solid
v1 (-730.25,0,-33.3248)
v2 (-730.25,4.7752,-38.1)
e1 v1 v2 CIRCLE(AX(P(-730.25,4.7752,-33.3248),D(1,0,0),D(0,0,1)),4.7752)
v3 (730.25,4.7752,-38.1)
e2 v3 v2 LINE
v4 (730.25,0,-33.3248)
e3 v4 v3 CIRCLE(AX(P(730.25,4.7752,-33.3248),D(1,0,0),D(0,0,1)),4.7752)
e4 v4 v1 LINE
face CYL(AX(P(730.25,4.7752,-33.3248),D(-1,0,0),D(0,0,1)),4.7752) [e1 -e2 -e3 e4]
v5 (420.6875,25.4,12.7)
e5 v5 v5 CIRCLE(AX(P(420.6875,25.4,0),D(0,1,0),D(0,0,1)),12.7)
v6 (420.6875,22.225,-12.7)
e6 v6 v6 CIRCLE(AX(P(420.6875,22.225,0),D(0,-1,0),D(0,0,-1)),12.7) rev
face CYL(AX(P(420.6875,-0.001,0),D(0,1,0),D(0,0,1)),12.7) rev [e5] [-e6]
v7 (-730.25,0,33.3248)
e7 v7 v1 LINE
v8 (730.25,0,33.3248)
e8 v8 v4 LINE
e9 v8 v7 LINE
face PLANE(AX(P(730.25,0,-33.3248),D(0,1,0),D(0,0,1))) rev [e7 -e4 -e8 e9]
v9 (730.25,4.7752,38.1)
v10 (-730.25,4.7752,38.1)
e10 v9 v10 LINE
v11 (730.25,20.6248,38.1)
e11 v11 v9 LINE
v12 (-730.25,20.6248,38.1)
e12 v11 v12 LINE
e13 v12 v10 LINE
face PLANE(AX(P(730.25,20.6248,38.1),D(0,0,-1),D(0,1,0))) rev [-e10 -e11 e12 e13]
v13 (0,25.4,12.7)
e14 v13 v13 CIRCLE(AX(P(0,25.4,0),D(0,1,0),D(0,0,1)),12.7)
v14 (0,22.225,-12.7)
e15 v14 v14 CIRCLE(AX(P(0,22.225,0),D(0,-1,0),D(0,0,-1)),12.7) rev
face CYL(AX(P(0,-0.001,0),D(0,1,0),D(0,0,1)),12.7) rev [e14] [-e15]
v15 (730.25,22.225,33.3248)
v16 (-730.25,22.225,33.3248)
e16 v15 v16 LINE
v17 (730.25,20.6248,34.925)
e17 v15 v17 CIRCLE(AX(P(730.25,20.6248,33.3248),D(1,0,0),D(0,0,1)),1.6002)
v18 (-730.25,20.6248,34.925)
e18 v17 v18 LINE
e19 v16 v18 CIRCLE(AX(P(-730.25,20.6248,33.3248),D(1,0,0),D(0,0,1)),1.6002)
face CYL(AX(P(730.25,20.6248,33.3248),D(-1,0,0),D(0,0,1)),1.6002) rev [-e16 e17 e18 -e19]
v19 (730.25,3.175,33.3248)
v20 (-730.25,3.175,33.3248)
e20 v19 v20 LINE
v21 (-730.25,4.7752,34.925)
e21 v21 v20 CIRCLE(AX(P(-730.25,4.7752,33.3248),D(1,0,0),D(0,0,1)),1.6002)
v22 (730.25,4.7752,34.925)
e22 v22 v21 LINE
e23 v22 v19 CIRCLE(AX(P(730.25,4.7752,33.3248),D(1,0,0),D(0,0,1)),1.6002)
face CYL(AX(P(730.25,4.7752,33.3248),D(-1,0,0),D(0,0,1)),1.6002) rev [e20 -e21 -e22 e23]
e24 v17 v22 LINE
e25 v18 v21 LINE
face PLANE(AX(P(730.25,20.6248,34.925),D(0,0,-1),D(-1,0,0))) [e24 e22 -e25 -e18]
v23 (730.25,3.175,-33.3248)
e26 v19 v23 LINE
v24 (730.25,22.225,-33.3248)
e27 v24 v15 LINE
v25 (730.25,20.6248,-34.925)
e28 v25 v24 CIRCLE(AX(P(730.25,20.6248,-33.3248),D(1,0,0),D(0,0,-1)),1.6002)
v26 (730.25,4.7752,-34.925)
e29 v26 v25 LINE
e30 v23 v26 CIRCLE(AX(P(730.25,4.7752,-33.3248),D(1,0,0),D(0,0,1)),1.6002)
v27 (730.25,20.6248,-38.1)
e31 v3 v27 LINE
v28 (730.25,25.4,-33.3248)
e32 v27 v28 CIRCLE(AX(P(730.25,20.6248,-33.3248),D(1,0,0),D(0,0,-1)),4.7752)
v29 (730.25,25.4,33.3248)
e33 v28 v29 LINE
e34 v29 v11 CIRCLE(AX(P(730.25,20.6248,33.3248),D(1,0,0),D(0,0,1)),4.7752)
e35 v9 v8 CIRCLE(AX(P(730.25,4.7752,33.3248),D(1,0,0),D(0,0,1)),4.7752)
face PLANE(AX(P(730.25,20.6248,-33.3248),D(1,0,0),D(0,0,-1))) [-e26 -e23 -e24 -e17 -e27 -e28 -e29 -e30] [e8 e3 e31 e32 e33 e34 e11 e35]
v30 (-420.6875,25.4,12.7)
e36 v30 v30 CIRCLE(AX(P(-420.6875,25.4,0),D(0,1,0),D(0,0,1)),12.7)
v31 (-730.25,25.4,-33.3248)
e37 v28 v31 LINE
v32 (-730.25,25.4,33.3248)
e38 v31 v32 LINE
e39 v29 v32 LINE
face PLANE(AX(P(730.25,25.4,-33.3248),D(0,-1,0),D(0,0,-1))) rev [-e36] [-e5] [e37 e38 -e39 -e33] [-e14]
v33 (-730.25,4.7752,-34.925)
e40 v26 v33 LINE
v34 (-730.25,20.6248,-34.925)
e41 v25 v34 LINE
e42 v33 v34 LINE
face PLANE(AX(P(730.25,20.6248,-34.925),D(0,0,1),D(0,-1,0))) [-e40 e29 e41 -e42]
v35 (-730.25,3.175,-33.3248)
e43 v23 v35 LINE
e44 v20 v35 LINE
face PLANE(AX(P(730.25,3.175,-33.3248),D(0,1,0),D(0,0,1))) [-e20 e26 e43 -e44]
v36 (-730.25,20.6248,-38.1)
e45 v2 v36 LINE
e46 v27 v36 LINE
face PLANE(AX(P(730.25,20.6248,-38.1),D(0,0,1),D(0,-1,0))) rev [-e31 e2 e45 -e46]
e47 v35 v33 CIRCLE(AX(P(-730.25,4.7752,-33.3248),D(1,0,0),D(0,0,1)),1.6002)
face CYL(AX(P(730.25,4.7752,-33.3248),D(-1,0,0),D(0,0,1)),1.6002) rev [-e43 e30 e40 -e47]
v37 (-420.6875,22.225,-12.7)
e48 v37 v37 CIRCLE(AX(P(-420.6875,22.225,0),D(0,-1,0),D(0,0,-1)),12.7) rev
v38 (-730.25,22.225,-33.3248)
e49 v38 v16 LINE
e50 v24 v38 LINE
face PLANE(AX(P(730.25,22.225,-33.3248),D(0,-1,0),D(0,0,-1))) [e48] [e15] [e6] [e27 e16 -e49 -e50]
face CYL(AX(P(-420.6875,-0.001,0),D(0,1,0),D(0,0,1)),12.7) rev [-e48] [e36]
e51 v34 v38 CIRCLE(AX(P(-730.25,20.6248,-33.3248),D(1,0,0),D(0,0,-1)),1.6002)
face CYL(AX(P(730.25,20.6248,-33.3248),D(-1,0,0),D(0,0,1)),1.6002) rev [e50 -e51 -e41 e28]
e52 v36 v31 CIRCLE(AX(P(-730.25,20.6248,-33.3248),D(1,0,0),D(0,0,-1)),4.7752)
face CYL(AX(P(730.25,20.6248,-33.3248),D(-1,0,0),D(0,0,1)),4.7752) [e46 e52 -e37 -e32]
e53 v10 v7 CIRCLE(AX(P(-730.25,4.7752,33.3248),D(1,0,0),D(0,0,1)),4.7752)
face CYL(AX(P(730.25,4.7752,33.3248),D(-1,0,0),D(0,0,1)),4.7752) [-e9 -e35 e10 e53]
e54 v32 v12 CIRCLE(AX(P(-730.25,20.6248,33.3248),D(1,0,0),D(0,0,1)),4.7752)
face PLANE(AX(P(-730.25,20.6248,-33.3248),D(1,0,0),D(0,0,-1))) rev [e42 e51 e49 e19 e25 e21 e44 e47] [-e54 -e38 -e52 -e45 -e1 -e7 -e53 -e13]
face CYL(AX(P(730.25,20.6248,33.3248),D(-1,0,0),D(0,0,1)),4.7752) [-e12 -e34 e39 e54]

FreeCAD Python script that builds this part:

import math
import FreeCAD as App
import Part
import Sketcher
Q = App.Units.Quantity

doc = App.newDocument("Part")
body = doc.addObject("PartDesign::Body", "Body")

# Sketch on YZ plane
sketch1 = doc.addObject("Sketcher::SketchObject", "Sketch")
body.addObject(sketch1)
sketch1.AttachmentSupport = (doc.YZ_Plane, [""])
sketch1.MapMode = "FlatFace"
sketch1.addGeometry([
    Part.LineSegment(App.Vector(25.4, -33.3, 0), App.Vector(25.4, 33.3, 0)),  # 0
    Part.ArcOfCircle(Part.Circle(App.Vector(20.6, 33.3, 0), App.Vector(0, 0, 1), 4.8), math.radians(0), math.radians(90)),  # 1
    Part.LineSegment(App.Vector(20.6, 38.1, 0), App.Vector(4.8, 38.1, 0)),  # 2
    Part.ArcOfCircle(Part.Circle(App.Vector(4.8, 33.3, 0), App.Vector(0, 0, 1), 4.8), math.radians(90), math.radians(180)),  # 3
    Part.LineSegment(App.Vector(0, 33.3, 0), App.Vector(0, -33.3, 0)),  # 4
    Part.ArcOfCircle(Part.Circle(App.Vector(4.8, -33.3, 0), App.Vector(0, 0, 1), 4.8), math.radians(180), math.radians(270)),  # 5
    Part.LineSegment(App.Vector(4.8, -38.1, 0), App.Vector(20.6, -38.1, 0)),  # 6
    Part.ArcOfCircle(Part.Circle(App.Vector(20.6, -33.3, 0), App.Vector(0, 0, 1), 4.8), math.radians(-90), math.radians(0)),  # 7
    Part.LineSegment(App.Vector(22.2, 33.3, 0), App.Vector(22.2, -33.3, 0)),  # 8
    Part.ArcOfCircle(Part.Circle(App.Vector(20.6, -33.3, 0), App.Vector(0, 0, 1), 1.6), math.radians(-90), math.radians(0)),  # 9
    Part.LineSegment(App.Vector(20.6, -34.9, 0), App.Vector(4.8, -34.9, 0)),  # 10
    Part.ArcOfCircle(Part.Circle(App.Vector(4.8, -33.3, 0), App.Vector(0, 0, 1), 1.6), math.radians(-180), math.radians(-90)),  # 11
    Part.LineSegment(App.Vector(3.2, -33.3, 0), App.Vector(3.2, 33.3, 0)),  # 12
    Part.ArcOfCircle(Part.Circle(App.Vector(4.8, 33.3, 0), App.Vector(0, 0, 1), 1.6), math.radians(90), math.radians(180)),  # 13
    Part.LineSegment(App.Vector(4.8, 34.9, 0), App.Vector(20.6, 34.9, 0)),  # 14
    Part.ArcOfCircle(Part.Circle(App.Vector(20.6, 33.3, 0), App.Vector(0, 0, 1), 1.6), math.radians(0), math.radians(90)),  # 15
], False)
sketch1.addConstraint([
    Sketcher.Constraint("Tangent", 0, 2, 1, 1),
    Sketcher.Constraint("Tangent", 1, 2, 2, 1),
    Sketcher.Constraint("Tangent", 2, 2, 3, 1),
    Sketcher.Constraint("Tangent", 3, 2, 4, 1),
    Sketcher.Constraint("Tangent", 4, 2, 5, 1),
    Sketcher.Constraint("Tangent", 5, 2, 6, 1),
    Sketcher.Constraint("Tangent", 6, 2, 7, 1),
    Sketcher.Constraint("Tangent", 7, 2, 0, 1),
    Sketcher.Constraint("Tangent", 8, 2, 9, 2),
    Sketcher.Constraint("Tangent", 9, 1, 10, 1),
    Sketcher.Constraint("Tangent", 10, 2, 11, 2),
    Sketcher.Constraint("Tangent", 11, 1, 12, 1),
    Sketcher.Constraint("Tangent", 12, 2, 13, 2),
    Sketcher.Constraint("Tangent", 13, 1, 14, 1),
    Sketcher.Constraint("Tangent", 14, 2, 15, 2),
    Sketcher.Constraint("Tangent", 15, 1, 8, 1),
    Sketcher.Constraint("Vertical", 0),
    Sketcher.Constraint("Horizontal", 2),
    Sketcher.Constraint("Vertical", 4),
    Sketcher.Constraint("Horizontal", 6),
    Sketcher.Constraint("Vertical", 8),
    Sketcher.Constraint("Horizontal", 10),
    Sketcher.Constraint("Vertical", 12),
    Sketcher.Constraint("Horizontal", 14),
    Sketcher.Constraint("Coincident", 9, 3, 7, 3),
    Sketcher.Constraint("Coincident", 11, 3, 5, 3),
    Sketcher.Constraint("Coincident", 13, 3, 3, 3),
    Sketcher.Constraint("Equal", 1, 3),
    Sketcher.Constraint("Equal", 3, 5),
    Sketcher.Constraint("Equal", 5, 7),
    Sketcher.Constraint("Equal", 13, 15),
    Sketcher.Constraint("Symmetric", 3, 2, 4, 2, -1, 1),
    Sketcher.Constraint("DistanceX", -1, 1, 0, 2, Q("1 in")),
    Sketcher.Constraint("Radius", 1, Q("0.188 in")),
    Sketcher.Constraint("Radius", 9, Q("0.063 in")),
    Sketcher.Constraint("DistanceY", -1, 1, 1, 2, Q("1.5 in")),
])
pad1 = doc.addObject("PartDesign::Pad", "Pad")
body.addObject(pad1)
pad1.Profile = sketch1
pad1.Length = Q("57.5 in")
pad1.Midplane = True

# Sketch on XZ plane
sketch2 = doc.addObject("Sketcher::SketchObject", "Sketch001")
body.addObject(sketch2)
sketch2.AttachmentSupport = (doc.XZ_Plane, [""])
sketch2.MapMode = "FlatFace"
sketch2.AttachmentOffset = App.Placement(App.Vector(0, 0, -1 * 25.4), App.Rotation())
sketch2.addGeometry(Part.Circle(App.Vector(-421, 0, 0), App.Vector(0, 0, 1), 13), False)
sketch2.addConstraint([
    Sketcher.Constraint("PointOnObject", 0, 3, -1),
    Sketcher.Constraint("Diameter", 0, Q("1 in")),
    Sketcher.Constraint("DistanceX", 0, 3, -1, 1, Q("16.5625 in")),
])
pocket1 = doc.addObject("PartDesign::Pocket", "Pocket")
body.addObject(pocket1)
pocket1.Profile = sketch2
pocket1.Length = Q("0.125 in")
pocket1.Reversed = True
doc.recompute()

linearpattern = doc.addObject("PartDesign::LinearPattern", "LinearPattern")
body.addObject(linearpattern)
linearpattern.Originals = [pocket1]
linearpattern.Direction = (doc.X_Axis, [""])
linearpattern.Mode = "offset"
linearpattern.Offset = Q("16.5625 in")
linearpattern.Occurrences = 3
body.Tip = linearpattern

doc.recompute()
